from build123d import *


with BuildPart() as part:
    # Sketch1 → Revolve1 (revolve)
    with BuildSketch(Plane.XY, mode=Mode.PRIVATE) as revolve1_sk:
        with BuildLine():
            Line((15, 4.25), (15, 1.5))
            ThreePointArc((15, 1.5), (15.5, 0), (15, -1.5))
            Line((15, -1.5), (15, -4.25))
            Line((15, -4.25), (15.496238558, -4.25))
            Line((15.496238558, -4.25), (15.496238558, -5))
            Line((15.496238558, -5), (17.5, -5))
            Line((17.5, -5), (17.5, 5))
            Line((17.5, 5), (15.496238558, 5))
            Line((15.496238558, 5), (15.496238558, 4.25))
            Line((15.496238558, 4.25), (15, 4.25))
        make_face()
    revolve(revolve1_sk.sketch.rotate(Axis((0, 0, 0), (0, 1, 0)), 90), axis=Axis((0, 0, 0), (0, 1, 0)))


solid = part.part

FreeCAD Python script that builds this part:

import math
import FreeCAD as App
import Part
import Sketcher
Q = App.Units.Quantity

doc = App.newDocument("Part")
body = doc.addObject("PartDesign::Body", "Body")

# Sketch on XY plane
sketch1 = doc.addObject("Sketcher::SketchObject", "Sketch")
body.addObject(sketch1)
sketch1.AttachmentSupport = (doc.XY_Plane, [""])
sketch1.MapMode = "FlatFace"
sketch1.addGeometry([
    Part.LineSegment(App.Vector(15, 4.25, 0), App.Vector(15, 1.5, 0)),  # 0
    Part.ArcOfCircle(Part.Circle(App.Vector(13, 0, 0), App.Vector(0, 0, 1), 2.5), math.radians(-37), math.radians(37)),  # 1
    Part.LineSegment(App.Vector(15, -1.5, 0), App.Vector(15, -4.25, 0)),  # 2
    Part.LineSegment(App.Vector(15, -4.25, 0), App.Vector(15.5, -4.25, 0)),  # 3
    Part.LineSegment(App.Vector(15.5, -4.25, 0), App.Vector(15.5, -5, 0)),  # 4
    Part.LineSegment(App.Vector(15.5, -5, 0), App.Vector(17.5, -5, 0)),  # 5
    Part.LineSegment(App.Vector(17.5, -5, 0), App.Vector(17.5, 5, 0)),  # 6
    Part.LineSegment(App.Vector(17.5, 5, 0), App.Vector(15.5, 5, 0)),  # 7
    Part.LineSegment(App.Vector(15.5, 5, 0), App.Vector(15.5, 4.25, 0)),  # 8
    Part.LineSegment(App.Vector(15.5, 4.25, 0), App.Vector(15, 4.25, 0)),  # 9
], False)
sketch1.addConstraint([
    Sketcher.Constraint("Coincident", 0, 2, 1, 2),
    Sketcher.Constraint("Coincident", 1, 1, 2, 1),
    Sketcher.Constraint("Coincident", 2, 2, 3, 1),
    Sketcher.Constraint("Coincident", 3, 2, 4, 1),
    Sketcher.Constraint("Coincident", 4, 2, 5, 1),
    Sketcher.Constraint("Coincident", 5, 2, 6, 1),
    Sketcher.Constraint("Coincident", 6, 2, 7, 1),
    Sketcher.Constraint("Coincident", 7, 2, 8, 1),
    Sketcher.Constraint("Coincident", 8, 2, 9, 1),
    Sketcher.Constraint("Coincident", 9, 2, 0, 1),
    Sketcher.Constraint("Vertical", 0),
    Sketcher.Constraint("Vertical", 2),
    Sketcher.Constraint("Horizontal", 3),
    Sketcher.Constraint("Vertical", 4),
    Sketcher.Constraint("Horizontal", 5),
    Sketcher.Constraint("Vertical", 6),
    Sketcher.Constraint("Horizontal", 7),
    Sketcher.Constraint("Vertical", 8),
    Sketcher.Constraint("Horizontal", 9),
    Sketcher.Constraint("Symmetric", 0, 2, 1, 1, -1),
    Sketcher.Constraint("Symmetric", 4, 2, 7, 2, -1),
    Sketcher.Constraint("Equal", 0, 2),
    Sketcher.Constraint("Radius", 1, Q("2.5 mm")),
    Sketcher.Constraint("DistanceY", 6, 1, 6, 2, Q("10 mm")),
    Sketcher.Constraint("DistanceX", -1, 1, 1, 3, Q("13 mm")),
    Sketcher.Constraint("DistanceX", -1, 1, 0, 2, Q("15 mm")),
    Sketcher.Constraint("DistanceY", 0, 2, 0, 1, Q("2.75 mm")),
    Sketcher.Constraint("DistanceX", -1, 1, 5, 2, Q("17.5 mm")),
    Sketcher.Constraint("DistanceX", 3, 1, 3, 2, Q("0.496239 mm")),
])
revolution = doc.addObject("PartDesign::Revolution", "Revolution")
body.addObject(revolution)
revolution.Profile = sketch1
revolution.ReferenceAxis = (sketch1, ["V_Axis"])
revolution.Angle = 360

doc.recompute()
